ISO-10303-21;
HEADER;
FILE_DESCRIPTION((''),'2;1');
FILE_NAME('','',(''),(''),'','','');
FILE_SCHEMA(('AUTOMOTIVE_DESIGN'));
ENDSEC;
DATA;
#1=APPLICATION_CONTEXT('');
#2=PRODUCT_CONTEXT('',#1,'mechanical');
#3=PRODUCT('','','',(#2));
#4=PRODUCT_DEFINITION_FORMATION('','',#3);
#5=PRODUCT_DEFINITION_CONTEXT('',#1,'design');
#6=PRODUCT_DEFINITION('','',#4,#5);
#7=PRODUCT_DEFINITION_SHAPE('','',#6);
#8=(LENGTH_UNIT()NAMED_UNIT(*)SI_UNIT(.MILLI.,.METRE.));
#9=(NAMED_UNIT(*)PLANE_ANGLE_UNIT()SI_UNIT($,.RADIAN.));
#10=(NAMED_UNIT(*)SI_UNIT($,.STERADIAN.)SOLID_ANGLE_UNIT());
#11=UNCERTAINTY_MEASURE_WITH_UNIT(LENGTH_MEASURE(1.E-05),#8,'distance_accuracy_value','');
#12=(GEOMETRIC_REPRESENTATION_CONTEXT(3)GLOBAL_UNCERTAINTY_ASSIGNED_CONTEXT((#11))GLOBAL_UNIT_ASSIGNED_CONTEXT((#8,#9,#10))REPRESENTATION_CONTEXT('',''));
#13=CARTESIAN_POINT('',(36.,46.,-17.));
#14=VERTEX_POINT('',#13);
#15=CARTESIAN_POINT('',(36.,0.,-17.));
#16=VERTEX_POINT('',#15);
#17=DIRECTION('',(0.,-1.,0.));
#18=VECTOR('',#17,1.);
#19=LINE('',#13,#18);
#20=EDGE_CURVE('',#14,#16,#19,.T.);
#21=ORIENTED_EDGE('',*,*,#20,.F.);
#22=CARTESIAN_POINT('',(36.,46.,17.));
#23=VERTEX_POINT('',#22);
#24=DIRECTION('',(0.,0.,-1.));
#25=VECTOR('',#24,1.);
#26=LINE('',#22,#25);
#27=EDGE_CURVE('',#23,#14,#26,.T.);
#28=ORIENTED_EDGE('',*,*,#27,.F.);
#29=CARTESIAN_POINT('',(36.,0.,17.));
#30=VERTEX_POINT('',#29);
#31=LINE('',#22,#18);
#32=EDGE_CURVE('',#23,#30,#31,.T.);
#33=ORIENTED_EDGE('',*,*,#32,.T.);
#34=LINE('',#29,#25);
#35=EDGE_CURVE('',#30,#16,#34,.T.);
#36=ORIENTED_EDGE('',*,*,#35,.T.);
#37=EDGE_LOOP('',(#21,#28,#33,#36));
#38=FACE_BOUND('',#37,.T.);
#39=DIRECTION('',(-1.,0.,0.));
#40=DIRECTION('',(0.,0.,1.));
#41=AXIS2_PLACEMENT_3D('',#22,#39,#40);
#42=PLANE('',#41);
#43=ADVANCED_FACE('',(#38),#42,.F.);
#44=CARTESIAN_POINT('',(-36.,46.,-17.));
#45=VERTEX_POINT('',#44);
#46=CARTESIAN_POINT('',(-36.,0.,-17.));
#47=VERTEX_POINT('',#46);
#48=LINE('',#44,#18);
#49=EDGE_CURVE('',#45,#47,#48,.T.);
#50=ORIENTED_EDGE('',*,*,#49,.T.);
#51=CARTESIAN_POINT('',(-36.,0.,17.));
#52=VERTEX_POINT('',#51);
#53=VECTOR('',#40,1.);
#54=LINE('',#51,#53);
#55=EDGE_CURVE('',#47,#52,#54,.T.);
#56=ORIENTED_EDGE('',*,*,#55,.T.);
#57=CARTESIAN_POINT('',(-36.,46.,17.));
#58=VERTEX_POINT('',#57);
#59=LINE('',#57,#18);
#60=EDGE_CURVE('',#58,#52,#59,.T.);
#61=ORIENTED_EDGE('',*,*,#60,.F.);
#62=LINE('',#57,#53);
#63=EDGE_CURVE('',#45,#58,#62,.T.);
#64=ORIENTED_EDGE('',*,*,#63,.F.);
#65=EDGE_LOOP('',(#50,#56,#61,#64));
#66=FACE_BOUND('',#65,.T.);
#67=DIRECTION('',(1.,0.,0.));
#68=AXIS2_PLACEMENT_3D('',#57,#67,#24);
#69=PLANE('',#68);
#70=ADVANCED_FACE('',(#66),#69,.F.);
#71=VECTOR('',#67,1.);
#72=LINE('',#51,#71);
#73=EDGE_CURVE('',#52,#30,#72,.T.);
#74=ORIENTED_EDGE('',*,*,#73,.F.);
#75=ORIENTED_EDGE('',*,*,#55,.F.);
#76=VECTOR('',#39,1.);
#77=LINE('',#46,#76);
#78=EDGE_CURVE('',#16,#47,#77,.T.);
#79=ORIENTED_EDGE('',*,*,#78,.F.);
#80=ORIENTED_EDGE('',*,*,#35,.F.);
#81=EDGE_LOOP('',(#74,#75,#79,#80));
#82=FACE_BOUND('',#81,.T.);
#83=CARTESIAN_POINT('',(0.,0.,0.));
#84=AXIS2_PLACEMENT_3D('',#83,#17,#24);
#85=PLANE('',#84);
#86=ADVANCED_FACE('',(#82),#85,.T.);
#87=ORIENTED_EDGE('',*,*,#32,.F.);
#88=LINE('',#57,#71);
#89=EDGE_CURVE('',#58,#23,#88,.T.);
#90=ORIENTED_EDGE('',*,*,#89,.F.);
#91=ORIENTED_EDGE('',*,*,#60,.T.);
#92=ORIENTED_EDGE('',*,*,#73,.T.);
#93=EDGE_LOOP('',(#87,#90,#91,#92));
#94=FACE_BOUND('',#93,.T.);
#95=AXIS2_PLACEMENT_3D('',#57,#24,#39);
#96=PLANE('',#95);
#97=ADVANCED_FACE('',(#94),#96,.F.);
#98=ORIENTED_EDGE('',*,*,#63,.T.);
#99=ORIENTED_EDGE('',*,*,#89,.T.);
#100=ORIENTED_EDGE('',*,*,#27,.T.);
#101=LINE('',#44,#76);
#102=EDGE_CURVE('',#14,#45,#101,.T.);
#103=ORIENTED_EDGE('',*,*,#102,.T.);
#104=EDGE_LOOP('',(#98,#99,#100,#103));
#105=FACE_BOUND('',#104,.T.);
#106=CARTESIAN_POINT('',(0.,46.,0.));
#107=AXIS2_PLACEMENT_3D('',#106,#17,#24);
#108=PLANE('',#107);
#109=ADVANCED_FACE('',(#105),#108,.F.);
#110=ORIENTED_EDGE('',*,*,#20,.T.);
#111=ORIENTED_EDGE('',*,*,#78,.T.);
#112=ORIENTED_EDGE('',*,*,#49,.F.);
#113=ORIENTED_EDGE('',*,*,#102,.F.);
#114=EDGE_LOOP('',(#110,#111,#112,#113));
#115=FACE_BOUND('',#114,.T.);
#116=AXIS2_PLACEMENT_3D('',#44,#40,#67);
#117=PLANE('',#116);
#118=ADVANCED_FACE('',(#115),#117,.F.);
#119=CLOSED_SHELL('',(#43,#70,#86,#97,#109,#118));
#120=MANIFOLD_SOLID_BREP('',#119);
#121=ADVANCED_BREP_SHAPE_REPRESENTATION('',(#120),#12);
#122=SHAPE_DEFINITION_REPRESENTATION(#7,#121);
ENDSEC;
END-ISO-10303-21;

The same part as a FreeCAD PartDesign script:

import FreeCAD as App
import Part
import Sketcher

doc = App.newDocument("Part")
body = doc.addObject("PartDesign::Body", "Body")

sketch1 = body.newObject("Sketcher::SketchObject", "Sketch")
sketch1.AttachmentSupport = (doc.getObject("XZ_Plane"), [""])
sketch1.MapMode = "FlatFace"
sketch1.addGeometry([
    Part.LineSegment(App.Vector(-36, -17, 0), App.Vector(-36, 17, 0)),
    Part.LineSegment(App.Vector(-36, 17, 0), App.Vector(36, 17, 0)),
    Part.LineSegment(App.Vector(36, 17, 0), App.Vector(36, -17, 0)),
    Part.LineSegment(App.Vector(36, -17, 0), App.Vector(-36, -17, 0)),
], False)
sketch1.addConstraint([
    Sketcher.Constraint("Coincident", 0, 2, 1, 1),
    Sketcher.Constraint("Coincident", 1, 2, 2, 1),
    Sketcher.Constraint("Coincident", 2, 2, 3, 1),
    Sketcher.Constraint("Coincident", 3, 2, 0, 1),
    Sketcher.Constraint("Vertical", 0),
    Sketcher.Constraint("Horizontal", 1),
    Sketcher.Constraint("Vertical", 2),
    Sketcher.Constraint("Horizontal", 3),
    Sketcher.Constraint("Symmetric", 0, 2, 2, 2, -1, 1),
    Sketcher.Constraint("DistanceX", 1, 1, 1, 2, 72.0),
    Sketcher.Constraint("DistanceY", 0, 1, 0, 2, 34.0),
])
pad1 = body.newObject("PartDesign::Pad", "Pad")
pad1.Profile = sketch1
pad1.Length = 46
pad1.Reversed = True

doc.recompute()
